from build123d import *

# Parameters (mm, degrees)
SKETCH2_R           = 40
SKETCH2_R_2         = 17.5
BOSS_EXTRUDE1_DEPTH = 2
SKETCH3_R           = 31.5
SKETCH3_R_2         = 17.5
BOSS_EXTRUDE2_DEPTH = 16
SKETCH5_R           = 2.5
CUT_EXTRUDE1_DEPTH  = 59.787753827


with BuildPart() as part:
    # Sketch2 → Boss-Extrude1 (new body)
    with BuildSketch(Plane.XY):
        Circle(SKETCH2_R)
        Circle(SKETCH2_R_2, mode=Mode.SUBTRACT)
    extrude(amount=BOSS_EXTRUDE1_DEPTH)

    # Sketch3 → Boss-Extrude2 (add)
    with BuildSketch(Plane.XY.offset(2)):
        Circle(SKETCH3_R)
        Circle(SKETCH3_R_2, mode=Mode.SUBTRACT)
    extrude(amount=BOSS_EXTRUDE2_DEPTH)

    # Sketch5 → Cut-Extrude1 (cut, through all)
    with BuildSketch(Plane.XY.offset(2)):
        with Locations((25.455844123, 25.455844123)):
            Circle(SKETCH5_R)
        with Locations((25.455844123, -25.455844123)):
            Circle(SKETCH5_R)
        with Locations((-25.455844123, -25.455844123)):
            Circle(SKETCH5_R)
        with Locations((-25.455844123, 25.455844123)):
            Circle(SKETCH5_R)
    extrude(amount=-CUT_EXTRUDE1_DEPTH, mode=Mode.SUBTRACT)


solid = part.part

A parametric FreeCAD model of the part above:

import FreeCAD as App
import Part
import Sketcher

V = App.Vector

doc = App.newDocument("Part")
params = doc.addObject("Spreadsheet::Sheet", "Params")
for row, (alias, value) in enumerate([
    ("sketch1_diameter", "80 mm"),
    ("sketch1_diameter2", "35 mm"),
    ("pad1_length", "2 mm"),
    ("sketch2_diameter", "63 mm"),
    ("sketch2_diameter2", "35 mm"),
    ("pad2_length", "16 mm"),
    ("sketch3_diameter", "5 mm"),
], start=1):
    params.set(f"A{row}", alias)
    params.set(f"B{row}", "=" + value)
    params.setAlias(f"B{row}", alias)

body = doc.addObject("PartDesign::Body", "Body")

sketch1 = doc.addObject("Sketcher::SketchObject", "Sketch")
body.addObject(sketch1)
sketch1.AttachmentSupport = (doc.XY_Plane, [""])
sketch1.MapMode = "FlatFace"
sketch1.addGeometry(Part.Circle(V(0, 0, 0), V(0, 0, 1), 40), False)
sketch1.addGeometry(Part.Circle(V(0, 0, 0), V(0, 0, 1), 18), False)
sketch1.addConstraint(Sketcher.Constraint("Coincident", 0, 3, -1, 1))
sketch1.addConstraint(Sketcher.Constraint("Coincident", 1, 3, -1, 1))
sketch1.addConstraint(Sketcher.Constraint("Diameter", 0, 80.0))
sketch1.addConstraint(Sketcher.Constraint("Diameter", 1, 35.0))
sketch1.setExpression("Constraints[2]", "Params.sketch1_diameter")
sketch1.setExpression("Constraints[3]", "Params.sketch1_diameter2")
pad1 = doc.addObject("PartDesign::Pad", "Pad")
body.addObject(pad1)
pad1.Profile = sketch1
pad1.setExpression("Length", "Params.pad1_length")

sketch2 = doc.addObject("Sketcher::SketchObject", "Sketch001")
body.addObject(sketch2)
sketch2.AttachmentSupport = (doc.XY_Plane, [""])
sketch2.MapMode = "FlatFace"
sketch2.AttachmentOffset = App.Placement(V(0, 0, 2), App.Rotation())
sketch2.addGeometry(Part.Circle(V(0, 0, 0), V(0, 0, 1), 32), False)
sketch2.addGeometry(Part.Circle(V(0, 0, 0), V(0, 0, 1), 18), False)
sketch2.addConstraint(Sketcher.Constraint("Coincident", 0, 3, -1, 1))
sketch2.addConstraint(Sketcher.Constraint("Coincident", 1, 3, -1, 1))
sketch2.addConstraint(Sketcher.Constraint("Diameter", 0, 63.0))
sketch2.addConstraint(Sketcher.Constraint("Diameter", 1, 35.0))
sketch2.setExpression("Constraints[2]", "Params.sketch2_diameter")
sketch2.setExpression("Constraints[3]", "Params.sketch2_diameter2")
pad2 = doc.addObject("PartDesign::Pad", "Pad001")
body.addObject(pad2)
pad2.Profile = sketch2
pad2.setExpression("Length", "Params.pad2_length")

sketch3 = doc.addObject("Sketcher::SketchObject", "Sketch002")
body.addObject(sketch3)
sketch3.AttachmentSupport = (doc.XY_Plane, [""])
sketch3.MapMode = "FlatFace"
sketch3.AttachmentOffset = App.Placement(V(0, 0, 2), App.Rotation())
sketch3.addGeometry(Part.Circle(V(25.5, 25.5, 0), V(0, 0, 1), 2.5), False)
sketch3.addGeometry(Part.Circle(V(25.5, -25.5, 0), V(0, 0, 1), 2.5), False)
sketch3.addGeometry(Part.Circle(V(-25.5, -25.5, 0), V(0, 0, 1), 2.5), False)
sketch3.addGeometry(Part.Circle(V(-25.5, 25.5, 0), V(0, 0, 1), 2.5), False)
sketch3.addConstraint(Sketcher.Constraint("Equal", 0, 1))
sketch3.addConstraint(Sketcher.Constraint("Equal", 1, 2))
sketch3.addConstraint(Sketcher.Constraint("Equal", 2, 3))
sketch3.addConstraint(Sketcher.Constraint("Symmetric", 0, 3, 2, 3, -1, 1))
sketch3.addConstraint(Sketcher.Constraint("Symmetric", 1, 3, 3, 3, -1, 1))
sketch3.addConstraint(Sketcher.Constraint("Symmetric", 1, 3, 2, 3, -2))
sketch3.addConstraint(Sketcher.Constraint("Diameter", 0, 5.0))
sketch3.addConstraint(Sketcher.Constraint("DistanceY", 1, 3, 0, 3, 50.911688))
sketch3.addConstraint(Sketcher.Constraint("DistanceX", 2, 3, 1, 3, 50.911688))
sketch3.setExpression("Constraints[6]", "Params.sketch3_diameter")
pocket1 = doc.addObject("PartDesign::Pocket", "Pocket")
body.addObject(pocket1)
pocket1.Profile = sketch3
pocket1.Type = "ThroughAll"

doc.recompute()
